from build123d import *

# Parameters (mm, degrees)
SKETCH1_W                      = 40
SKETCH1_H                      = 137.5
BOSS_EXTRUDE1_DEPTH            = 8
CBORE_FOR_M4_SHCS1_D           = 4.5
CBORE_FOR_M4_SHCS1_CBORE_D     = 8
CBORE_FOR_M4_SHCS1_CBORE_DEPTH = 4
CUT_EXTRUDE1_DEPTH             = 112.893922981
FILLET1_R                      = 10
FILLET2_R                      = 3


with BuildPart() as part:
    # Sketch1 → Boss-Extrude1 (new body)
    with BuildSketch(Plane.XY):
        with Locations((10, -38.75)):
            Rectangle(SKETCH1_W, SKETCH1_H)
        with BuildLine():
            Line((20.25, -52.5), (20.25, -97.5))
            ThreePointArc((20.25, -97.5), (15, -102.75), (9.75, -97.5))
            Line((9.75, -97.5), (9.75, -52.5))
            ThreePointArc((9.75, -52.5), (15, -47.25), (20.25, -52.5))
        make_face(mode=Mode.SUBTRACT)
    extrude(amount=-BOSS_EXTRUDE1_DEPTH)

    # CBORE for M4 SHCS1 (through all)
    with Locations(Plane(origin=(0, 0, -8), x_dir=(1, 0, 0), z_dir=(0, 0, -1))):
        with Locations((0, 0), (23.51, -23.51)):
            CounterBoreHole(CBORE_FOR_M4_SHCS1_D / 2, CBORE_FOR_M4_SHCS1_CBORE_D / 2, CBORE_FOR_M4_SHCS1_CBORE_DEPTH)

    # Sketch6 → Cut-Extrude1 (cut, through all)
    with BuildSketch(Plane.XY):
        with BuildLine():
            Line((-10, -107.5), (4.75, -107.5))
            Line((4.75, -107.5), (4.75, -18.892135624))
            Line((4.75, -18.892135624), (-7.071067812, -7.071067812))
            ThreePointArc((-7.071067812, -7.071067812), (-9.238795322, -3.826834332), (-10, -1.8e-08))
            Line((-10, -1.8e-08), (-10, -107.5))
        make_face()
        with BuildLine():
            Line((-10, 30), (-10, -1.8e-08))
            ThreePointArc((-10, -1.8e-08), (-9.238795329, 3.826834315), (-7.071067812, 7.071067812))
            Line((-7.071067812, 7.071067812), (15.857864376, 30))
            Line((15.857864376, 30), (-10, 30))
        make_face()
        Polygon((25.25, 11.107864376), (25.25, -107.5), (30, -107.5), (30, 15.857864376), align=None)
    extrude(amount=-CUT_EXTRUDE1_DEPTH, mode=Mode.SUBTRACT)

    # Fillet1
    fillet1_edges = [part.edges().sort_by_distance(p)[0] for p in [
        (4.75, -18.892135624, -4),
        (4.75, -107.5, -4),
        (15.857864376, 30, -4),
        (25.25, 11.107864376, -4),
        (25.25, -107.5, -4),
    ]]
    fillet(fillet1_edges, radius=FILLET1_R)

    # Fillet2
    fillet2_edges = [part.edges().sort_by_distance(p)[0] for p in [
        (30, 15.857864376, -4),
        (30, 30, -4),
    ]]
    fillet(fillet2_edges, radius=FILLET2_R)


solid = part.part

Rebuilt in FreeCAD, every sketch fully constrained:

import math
import FreeCAD as App
import Part
import Sketcher


def edges_at(feature, points):
    """Names of the edges that pass closest to the given points."""
    edges = feature.Shape.Edges
    near = lambda p: min(range(len(edges)), key=lambda i: edges[i].distToShape(Part.Vertex(*p))[0])
    return sorted({f"Edge{near(p) + 1}" for p in points})


def add_polygon(sketch, points):
    """Adds a closed chain of lines whose ends are joined by coincident constraints."""
    first, n = sketch.GeometryCount, len(points)
    for a, b in zip(points, points[1:] + points[:1]):
        sketch.addGeometry(Part.LineSegment(App.Vector(*a, 0), App.Vector(*b, 0)), False)
    for i in range(n):
        sketch.addConstraint(Sketcher.Constraint("Coincident", first + i, 2, first + (i + 1) % n, 1))

doc = App.newDocument("Part")
body = doc.addObject("PartDesign::Body", "Body")

# Sketch on XY plane
sketch1 = body.newObject("Sketcher::SketchObject", "Sketch")
sketch1.AttachmentSupport = (doc.getObject("XY_Plane"), [""])
sketch1.MapMode = "FlatFace"
add_polygon(sketch1, [(-10, 30), (-10, -108), (30, -108), (30, 30)])  # lines 0-3
sketch1.addGeometry(Part.ArcOfCircle(Part.Circle(App.Vector(15, -52, 0), App.Vector(0, 0, 1), 5), math.radians(0), math.radians(180)), False)  # 4
sketch1.addGeometry(Part.LineSegment(App.Vector(20, -52, 0), App.Vector(20, -98, 0)), False)  # 5
sketch1.addGeometry(Part.ArcOfCircle(Part.Circle(App.Vector(15, -98, 0), App.Vector(0, 0, 1), 5), math.radians(180), math.radians(360)), False)  # 6
sketch1.addGeometry(Part.LineSegment(App.Vector(10, -98, 0), App.Vector(10, -52, 0)), False)  # 7
sketch1.addConstraint(Sketcher.Constraint("Tangent", 4, 1, 5, 1))
sketch1.addConstraint(Sketcher.Constraint("Tangent", 5, 2, 6, 2))
sketch1.addConstraint(Sketcher.Constraint("Tangent", 6, 1, 7, 1))
sketch1.addConstraint(Sketcher.Constraint("Tangent", 7, 2, 4, 2))
sketch1.addConstraint(Sketcher.Constraint("Vertical", 0))
sketch1.addConstraint(Sketcher.Constraint("Horizontal", 1))
sketch1.addConstraint(Sketcher.Constraint("Vertical", 2))
sketch1.addConstraint(Sketcher.Constraint("Horizontal", 3))
sketch1.addConstraint(Sketcher.Constraint("Vertical", 5))
sketch1.addConstraint(Sketcher.Constraint("Vertical", 7))
sketch1.addConstraint(Sketcher.Constraint("DistanceX", 1, 1, 1, 2, 40.0))
sketch1.addConstraint(Sketcher.Constraint("DistanceY", 5, 2, 5, 1, 45.0))
sketch1.addConstraint(Sketcher.Constraint("Radius", 4, 5.25))
sketch1.addConstraint(Sketcher.Constraint("DistanceY", 0, 2, 0, 1, 137.5))
sketch1.addConstraint(Sketcher.Constraint("DistanceX", -1, 1, 4, 3, 15.0))
sketch1.addConstraint(Sketcher.Constraint("DistanceX", 0, 2, -1, 1, 10.0))
sketch1.addConstraint(Sketcher.Constraint("DistanceY", -1, 1, 2, 2, 30.0))
sketch1.addConstraint(Sketcher.Constraint("DistanceY", 0, 2, 6, 3, 10.0))
pad1 = body.newObject("PartDesign::Pad", "Pad")
pad1.Profile = sketch1
pad1.Length = 8
pad1.Reversed = True

# Sketch on XY plane
sketch2 = body.newObject("Sketcher::SketchObject", "Sketch001")
sketch2.AttachmentSupport = (doc.getObject("XY_Plane"), [""])
sketch2.MapMode = "FlatFace"
sketch2.AttachmentOffset = App.Placement(App.Vector(0, 0, -8), App.Rotation())
sketch2.addGeometry(Part.Circle(App.Vector(0, 0, 0), App.Vector(0, 0, 1), 2.2), False)
sketch2.addGeometry(Part.Circle(App.Vector(23.5, 23.5, 0), App.Vector(0, 0, 1), 2.2), False)
sketch2.addConstraint(Sketcher.Constraint("Coincident", 0, 3, -1, 1))
sketch2.addConstraint(Sketcher.Constraint("Equal", 0, 1))
sketch2.addConstraint(Sketcher.Constraint("Diameter", 0, 4.5))
sketch2.addConstraint(Sketcher.Constraint("DistanceX", -1, 1, 1, 3, 23.51))
sketch2.addConstraint(Sketcher.Constraint("DistanceY", -1, 1, 1, 3, 23.51))
doc.recompute()
hole = body.newObject("PartDesign::Hole", "Hole")
hole.Profile = sketch2
hole.ThreadType = "None"
hole.Diameter = 4.5
hole.DepthType = "ThroughAll"
hole.HoleCutType = "Counterbore"
hole.HoleCutDiameter = 8
hole.HoleCutDepth = 4
hole.Reversed = True

# Sketch on XY plane
sketch3 = body.newObject("Sketcher::SketchObject", "Sketch002")
sketch3.AttachmentSupport = (doc.getObject("XY_Plane"), [""])
sketch3.MapMode = "FlatFace"
sketch3.addGeometry(Part.LineSegment(App.Vector(-10, -107.5, 0), App.Vector(4.8, -107.5, 0)), False)  # 0
sketch3.addGeometry(Part.LineSegment(App.Vector(4.8, -107.5, 0), App.Vector(4.8, -18.9, 0)), False)  # 1
sketch3.addGeometry(Part.LineSegment(App.Vector(4.8, -18.9, 0), App.Vector(-7.1, -7.1, 0)), False)  # 2
sketch3.addGeometry(Part.ArcOfCircle(Part.Circle(App.Vector(0, 0, 0), App.Vector(0, 0, 1), 10), math.radians(-180), math.radians(-135)), False)  # 3
sketch3.addGeometry(Part.LineSegment(App.Vector(-10, 0, 0), App.Vector(-10, -107.5, 0)), False)  # 4
sketch3.addGeometry(Part.LineSegment(App.Vector(-10, 30, 0), App.Vector(-10, 0, 0)), False)  # 5
sketch3.addGeometry(Part.ArcOfCircle(Part.Circle(App.Vector(0, 0, 0), App.Vector(0, 0, 1), 10), math.radians(135), math.radians(180)), False)  # 6
sketch3.addGeometry(Part.LineSegment(App.Vector(-7.1, 7.1, 0), App.Vector(15.9, 30, 0)), False)  # 7
sketch3.addGeometry(Part.LineSegment(App.Vector(15.9, 30, 0), App.Vector(-10, 30, 0)), False)  # 8
add_polygon(sketch3, [(25.2, 11.1), (25.2, -107.5), (30, -107.5), (30, 15.9)])  # lines 9-12
sketch3.addConstraint(Sketcher.Constraint("Coincident", 0, 2, 1, 1))
sketch3.addConstraint(Sketcher.Constraint("Coincident", 1, 2, 2, 1))
sketch3.addConstraint(Sketcher.Constraint("Tangent", 2, 2, 3, 2))
sketch3.addConstraint(Sketcher.Constraint("Tangent", 3, 1, 4, 1))
sketch3.addConstraint(Sketcher.Constraint("Coincident", 4, 2, 0, 1))
sketch3.addConstraint(Sketcher.Constraint("Tangent", 5, 2, 6, 2))
sketch3.addConstraint(Sketcher.Constraint("Tangent", 6, 1, 7, 1))
sketch3.addConstraint(Sketcher.Constraint("Coincident", 7, 2, 8, 1))
sketch3.addConstraint(Sketcher.Constraint("Coincident", 8, 2, 5, 1))
sketch3.addConstraint(Sketcher.Constraint("Horizontal", 0))
sketch3.addConstraint(Sketcher.Constraint("Vertical", 1))
sketch3.addConstraint(Sketcher.Constraint("Vertical", 4))
sketch3.addConstraint(Sketcher.Constraint("Vertical", 5))
sketch3.addConstraint(Sketcher.Constraint("Horizontal", 8))
sketch3.addConstraint(Sketcher.Constraint("Vertical", 9))
sketch3.addConstraint(Sketcher.Constraint("Horizontal", 10))
sketch3.addConstraint(Sketcher.Constraint("Vertical", 11))
sketch3.addConstraint(Sketcher.Constraint("Coincident", 3, 3, -1, 1))
sketch3.addConstraint(Sketcher.Constraint("Coincident", 6, 3, -1, 1))
sketch3.addConstraint(Sketcher.Constraint("Equal", 3, 6))
sketch3.addConstraint(Sketcher.Constraint("Perpendicular", 2, 7))
sketch3.addConstraint(Sketcher.Constraint("Parallel", 7, 12))
sketch3.addConstraint(Sketcher.Constraint("Horizontal", 4, 2, 9, 2))
sketch3.addConstraint(Sketcher.Constraint("Vertical", 2, 2, 6, 1))
sketch3.addConstraint(Sketcher.Constraint("Radius", 3, 10.0))
sketch3.addConstraint(Sketcher.Constraint("DistanceY", 5, 2, 5, 1, 30.0))
sketch3.addConstraint(Sketcher.Constraint("DistanceY", 4, 2, 4, 1, 107.5))
sketch3.addConstraint(Sketcher.Constraint("DistanceX", -1, 1, 10, 2, 30.0))
sketch3.addConstraint(Sketcher.Constraint("DistanceX", 0, 1, 0, 2, 14.75))
sketch3.addConstraint(Sketcher.Constraint("DistanceX", 10, 1, 10, 2, 4.75))
sketch3.addConstraint(Sketcher.Constraint("DistanceY", 9, 2, 9, 1, 118.607864))
pocket1 = body.newObject("PartDesign::Pocket", "Pocket")
pocket1.Profile = sketch3
pocket1.Type = "ThroughAll"
doc.recompute()

fillet = body.newObject("PartDesign::Fillet", "Fillet")
fillet.Base = (pocket1, edges_at(pocket1, [
    (4.75, -18.892, -4),
    (4.75, -107.5, -4),
    (15.858, 30, -4),
    (25.25, 11.108, -4),
    (25.25, -107.5, -4),
]))
fillet.Radius = 10
doc.recompute()

fillet2 = body.newObject("PartDesign::Fillet", "Fillet001")
fillet2.Base = (fillet, edges_at(fillet, [(30, 15.858, -4), (30, 30, -4)]))
fillet2.Radius = 3

doc.recompute()
